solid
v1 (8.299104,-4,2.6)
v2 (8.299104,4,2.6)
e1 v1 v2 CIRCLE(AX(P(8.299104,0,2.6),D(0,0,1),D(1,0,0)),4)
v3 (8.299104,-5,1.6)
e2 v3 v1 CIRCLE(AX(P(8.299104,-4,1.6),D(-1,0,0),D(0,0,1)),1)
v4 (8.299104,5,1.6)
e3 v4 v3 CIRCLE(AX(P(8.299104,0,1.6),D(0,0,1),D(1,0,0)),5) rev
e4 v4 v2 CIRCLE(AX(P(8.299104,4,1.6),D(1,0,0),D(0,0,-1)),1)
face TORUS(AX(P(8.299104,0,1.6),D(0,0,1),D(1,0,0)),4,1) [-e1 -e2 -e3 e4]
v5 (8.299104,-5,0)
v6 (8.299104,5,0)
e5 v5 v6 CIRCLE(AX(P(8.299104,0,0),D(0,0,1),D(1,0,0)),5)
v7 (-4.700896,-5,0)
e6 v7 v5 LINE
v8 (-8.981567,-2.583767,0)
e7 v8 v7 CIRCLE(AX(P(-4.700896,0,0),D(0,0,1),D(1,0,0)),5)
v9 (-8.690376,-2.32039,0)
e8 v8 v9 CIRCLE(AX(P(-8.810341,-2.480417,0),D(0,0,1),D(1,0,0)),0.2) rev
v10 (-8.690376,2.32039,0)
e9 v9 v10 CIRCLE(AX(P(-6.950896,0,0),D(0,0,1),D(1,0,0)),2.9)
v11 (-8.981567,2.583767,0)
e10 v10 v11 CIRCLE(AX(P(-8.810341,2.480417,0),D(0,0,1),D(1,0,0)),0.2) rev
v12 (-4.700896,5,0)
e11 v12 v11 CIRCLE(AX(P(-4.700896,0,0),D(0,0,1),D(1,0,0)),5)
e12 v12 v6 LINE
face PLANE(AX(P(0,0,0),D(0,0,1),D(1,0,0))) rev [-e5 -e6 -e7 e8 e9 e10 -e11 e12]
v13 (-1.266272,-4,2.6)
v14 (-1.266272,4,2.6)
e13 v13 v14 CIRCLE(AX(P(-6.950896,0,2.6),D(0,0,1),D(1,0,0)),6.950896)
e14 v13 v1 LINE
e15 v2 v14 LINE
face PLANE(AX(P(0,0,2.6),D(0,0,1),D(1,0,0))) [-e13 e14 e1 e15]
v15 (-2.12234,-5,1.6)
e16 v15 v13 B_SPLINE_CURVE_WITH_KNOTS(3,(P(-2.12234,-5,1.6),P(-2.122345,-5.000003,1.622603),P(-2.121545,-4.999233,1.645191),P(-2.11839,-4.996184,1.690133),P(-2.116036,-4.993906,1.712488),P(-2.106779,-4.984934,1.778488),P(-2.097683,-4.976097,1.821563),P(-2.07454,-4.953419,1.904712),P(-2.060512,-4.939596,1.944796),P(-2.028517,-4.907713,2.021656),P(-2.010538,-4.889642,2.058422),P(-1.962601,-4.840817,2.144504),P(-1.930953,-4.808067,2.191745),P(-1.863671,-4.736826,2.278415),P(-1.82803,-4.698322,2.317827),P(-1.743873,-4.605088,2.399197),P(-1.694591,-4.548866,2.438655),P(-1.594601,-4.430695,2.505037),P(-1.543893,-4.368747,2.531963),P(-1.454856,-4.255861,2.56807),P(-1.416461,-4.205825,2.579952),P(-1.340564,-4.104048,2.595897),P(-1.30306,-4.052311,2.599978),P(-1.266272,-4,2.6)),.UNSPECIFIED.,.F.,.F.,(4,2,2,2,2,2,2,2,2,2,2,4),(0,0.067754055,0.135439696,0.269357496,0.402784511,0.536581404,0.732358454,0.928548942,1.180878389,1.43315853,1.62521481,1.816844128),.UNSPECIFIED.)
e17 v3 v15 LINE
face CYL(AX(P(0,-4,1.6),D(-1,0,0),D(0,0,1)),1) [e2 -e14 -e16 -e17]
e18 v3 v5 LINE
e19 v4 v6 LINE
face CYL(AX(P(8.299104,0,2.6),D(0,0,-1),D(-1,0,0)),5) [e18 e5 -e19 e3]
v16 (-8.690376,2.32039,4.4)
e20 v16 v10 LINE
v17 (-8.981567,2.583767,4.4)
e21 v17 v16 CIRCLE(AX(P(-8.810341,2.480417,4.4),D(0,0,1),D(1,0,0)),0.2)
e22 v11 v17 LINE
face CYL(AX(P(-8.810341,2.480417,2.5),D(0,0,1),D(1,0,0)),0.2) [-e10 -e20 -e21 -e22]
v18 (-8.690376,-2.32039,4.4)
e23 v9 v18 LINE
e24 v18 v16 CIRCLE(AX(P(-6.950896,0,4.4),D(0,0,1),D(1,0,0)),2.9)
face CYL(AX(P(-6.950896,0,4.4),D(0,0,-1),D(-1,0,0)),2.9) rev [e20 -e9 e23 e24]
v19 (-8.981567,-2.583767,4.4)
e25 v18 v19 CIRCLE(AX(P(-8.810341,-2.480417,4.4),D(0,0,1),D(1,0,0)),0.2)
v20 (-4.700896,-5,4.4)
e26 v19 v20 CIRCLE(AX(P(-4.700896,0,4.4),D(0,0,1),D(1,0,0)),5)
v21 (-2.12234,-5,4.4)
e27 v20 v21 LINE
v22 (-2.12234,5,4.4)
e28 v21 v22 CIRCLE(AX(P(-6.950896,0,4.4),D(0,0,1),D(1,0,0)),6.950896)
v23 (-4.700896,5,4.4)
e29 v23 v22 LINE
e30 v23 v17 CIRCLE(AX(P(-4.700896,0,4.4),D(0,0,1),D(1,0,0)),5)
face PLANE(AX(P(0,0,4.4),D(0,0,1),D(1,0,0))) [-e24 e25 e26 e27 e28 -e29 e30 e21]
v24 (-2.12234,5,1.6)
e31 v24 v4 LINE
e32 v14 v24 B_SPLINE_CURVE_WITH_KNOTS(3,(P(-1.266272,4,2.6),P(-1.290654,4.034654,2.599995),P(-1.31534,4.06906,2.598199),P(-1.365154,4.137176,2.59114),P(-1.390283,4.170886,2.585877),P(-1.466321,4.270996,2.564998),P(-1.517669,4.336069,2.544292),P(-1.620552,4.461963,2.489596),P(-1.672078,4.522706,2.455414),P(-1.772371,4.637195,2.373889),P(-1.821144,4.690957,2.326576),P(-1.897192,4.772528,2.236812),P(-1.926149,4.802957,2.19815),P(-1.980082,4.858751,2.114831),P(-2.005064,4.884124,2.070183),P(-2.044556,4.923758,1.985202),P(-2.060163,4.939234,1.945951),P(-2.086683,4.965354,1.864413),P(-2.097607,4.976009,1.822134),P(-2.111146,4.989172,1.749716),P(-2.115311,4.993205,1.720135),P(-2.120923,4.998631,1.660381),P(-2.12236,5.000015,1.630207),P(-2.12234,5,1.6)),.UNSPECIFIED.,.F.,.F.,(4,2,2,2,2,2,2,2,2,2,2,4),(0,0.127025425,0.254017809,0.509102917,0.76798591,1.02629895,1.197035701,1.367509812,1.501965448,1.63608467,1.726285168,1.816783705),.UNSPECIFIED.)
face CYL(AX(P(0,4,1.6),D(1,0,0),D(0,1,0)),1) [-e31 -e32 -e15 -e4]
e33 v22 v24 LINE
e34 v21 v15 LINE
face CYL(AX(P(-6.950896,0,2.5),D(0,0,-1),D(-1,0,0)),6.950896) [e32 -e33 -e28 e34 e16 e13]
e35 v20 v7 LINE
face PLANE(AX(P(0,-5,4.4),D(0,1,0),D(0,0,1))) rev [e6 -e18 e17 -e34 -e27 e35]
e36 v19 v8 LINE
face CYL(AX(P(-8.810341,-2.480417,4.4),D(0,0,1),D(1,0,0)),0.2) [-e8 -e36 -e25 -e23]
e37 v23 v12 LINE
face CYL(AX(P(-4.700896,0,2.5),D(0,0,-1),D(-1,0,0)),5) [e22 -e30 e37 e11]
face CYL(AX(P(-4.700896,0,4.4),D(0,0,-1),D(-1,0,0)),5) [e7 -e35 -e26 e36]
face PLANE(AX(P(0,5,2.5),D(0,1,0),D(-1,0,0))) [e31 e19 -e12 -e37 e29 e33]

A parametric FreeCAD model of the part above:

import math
import FreeCAD as App
import Part
import Sketcher
from FreeCAD import Vector


def edges_at(feature, points):
    """Names of the edges that pass closest to the given points."""
    edges = feature.Shape.Edges
    near = lambda p: min(range(len(edges)), key=lambda i: edges[i].distToShape(Part.Vertex(*p))[0])
    return sorted({f"Edge{near(p) + 1}" for p in points})

doc = App.newDocument("Part")
body = doc.addObject("PartDesign::Body", "Body")

# Sketch on XY plane
sketch1 = body.newObject("Sketcher::SketchObject", "Sketch")
sketch1.AttachmentSupport = (doc.getObject("XY_Plane"), [""])
sketch1.MapMode = "FlatFace"
sketch1.addGeometry([
    Part.ArcOfCircle(Part.Circle(Vector(-6.950896, 0, 0), Vector(0, 0, 1), 3.839498), math.radians(0), math.radians(107.500827)),  # 0
    Part.LineSegment(Vector(-3.111398, 0, 0), Vector(0, 0, 0)),  # 1
    Part.ArcOfCircle(Part.Circle(Vector(-6.950896, 0, 0), Vector(0, 0, 1), 6.950896), math.radians(0), math.radians(45.999333)),  # 2
    Part.LineSegment(Vector(-2.12234, 5, 0), Vector(-4.700896, 5, 0)),  # 3
    Part.ArcOfCircle(Part.Circle(Vector(-4.700896, 0, 0), Vector(0, 0, 1), 5), math.radians(90), math.radians(132.915768)),  # 4
], False)
sketch1.addConstraint([
    Sketcher.Constraint("Coincident", 0, 1, 1, 1),
    Sketcher.Constraint("Coincident", 1, 2, 2, 1),
    Sketcher.Constraint("Coincident", 2, 2, 3, 1),
    Sketcher.Constraint("Tangent", 3, 2, 4, 1),
    Sketcher.Constraint("Coincident", 4, 2, 0, 2),
    Sketcher.Constraint("Horizontal", 1),
    Sketcher.Constraint("Horizontal", 3),
    Sketcher.Constraint("Coincident", 1, 2, -1, 1),
    Sketcher.Constraint("Coincident", 2, 3, 0, 3),
    Sketcher.Constraint("PointOnObject", 0, 3, -1),
    Sketcher.Constraint("PointOnObject", 4, 3, -1),
    Sketcher.Constraint("Radius", 4, 5.0),
    Sketcher.Constraint("Radius", 0, 3.839498),
    Sketcher.Constraint("DistanceX", 2, 3, 4, 3, 2.25),
    Sketcher.Constraint("DistanceX", 1, 1, 1, 2, 3.111398),
])
pad1 = body.newObject("PartDesign::Pad", "Pad")
pad1.Profile = sketch1
pad1.Length = 2.5

# Sketch on XY plane
sketch2 = body.newObject("Sketcher::SketchObject", "Sketch001")
sketch2.AttachmentSupport = (doc.getObject("XY_Plane"), [""])
sketch2.MapMode = "FlatFace"
sketch2.addGeometry([
    Part.ArcOfCircle(Part.Circle(Vector(-6.950896, 0, 0), Vector(0, 0, 1), 3.839498), math.radians(0), math.radians(107.500827)),  # 0
    Part.ArcOfCircle(Part.Circle(Vector(-4.700896, 0, 0), Vector(0, 0, 1), 5), math.radians(132.915768), math.radians(164.224289)),  # 1
    Part.ArcOfCircle(Part.Circle(Vector(-6.950896, 0, 0), Vector(0, 0, 1), 2.9), math.radians(0), math.radians(152.047113)),  # 2
    Part.ArcOfCircle(Part.Circle(Vector(-6.950896, 0, 0), Vector(0, 0, 1), 2.9), math.radians(-152.047113), math.radians(0)),  # 3
    Part.ArcOfCircle(Part.Circle(Vector(-4.700896, 0, 0), Vector(0, 0, 1), 5), math.radians(-164.224289), math.radians(-132.915768)),  # 4
    Part.ArcOfCircle(Part.Circle(Vector(-6.950896, 0, 0), Vector(0, 0, 1), 3.839498), math.radians(-107.500827), math.radians(0)),  # 5
], False)
sketch2.addConstraint([
    Sketcher.Constraint("Coincident", 0, 2, 1, 1),
    Sketcher.Constraint("Coincident", 1, 2, 2, 2),
    Sketcher.Constraint("Tangent", 2, 1, 3, 2),
    Sketcher.Constraint("Coincident", 3, 1, 4, 1),
    Sketcher.Constraint("Coincident", 4, 2, 5, 1),
    Sketcher.Constraint("Tangent", 5, 2, 0, 1),
    Sketcher.Constraint("Coincident", 2, 3, 0, 3),
    Sketcher.Constraint("Coincident", 4, 3, 1, 3),
    Sketcher.Constraint("Equal", 2, 3),
    Sketcher.Constraint("Equal", 1, 4),
    Sketcher.Constraint("Equal", 0, 5),
    Sketcher.Constraint("Symmetric", 1, 2, 3, 1, -1),
    Sketcher.Constraint("PointOnObject", 2, 1, -1),
    Sketcher.Constraint("PointOnObject", 5, 2, -1),
    Sketcher.Constraint("Radius", 1, 5.0),
    Sketcher.Constraint("Radius", 2, 2.9),
    Sketcher.Constraint("Radius", 0, 3.839498),
    Sketcher.Constraint("DistanceX", 0, 3, 1, 3, 2.25),
    Sketcher.Constraint("DistanceX", 5, 2, -1, 1, 3.111398),
])
pad2 = body.newObject("PartDesign::Pad", "Pad001")
pad2.Profile = sketch2
pad2.Length = 4.4
doc.recompute()

fillet = body.newObject("PartDesign::Fillet", "Fillet")
fillet.Base = (pad2, edges_at(pad2, [(-9.513, -1.359, 2.2)]))
fillet.Radius = 0.2
doc.recompute()

fillet2 = body.newObject("PartDesign::Fillet", "Fillet001")
fillet2.Base = (fillet, edges_at(fillet, [(-9.513, 1.359, 2.2)]))
fillet2.Radius = 0.2

# Sketch on XY plane
sketch3 = body.newObject("Sketcher::SketchObject", "Sketch002")
sketch3.AttachmentSupport = (doc.getObject("XY_Plane"), [""])
sketch3.MapMode = "FlatFace"
sketch3.addGeometry([
    Part.ArcOfCircle(Part.Circle(Vector(-6.950896, 0, 0), Vector(0, 0, 1), 3.839498), math.radians(0), math.radians(107.500827)),  # 0
    Part.ArcOfCircle(Part.Circle(Vector(-6.950896, 0, 0), Vector(0, 0, 1), 3.839498), math.radians(-107.500827), math.radians(0)),  # 1
    Part.ArcOfCircle(Part.Circle(Vector(-4.700896, 0, 0), Vector(0, 0, 1), 5), math.radians(-132.915768), math.radians(-90)),  # 2
    Part.LineSegment(Vector(-4.700896, -5, 0), Vector(-2.12234, -5, 0)),  # 3
    Part.ArcOfCircle(Part.Circle(Vector(-6.950896, 0, 0), Vector(0, 0, 1), 6.950896), math.radians(-45.999333), math.radians(0)),  # 4
    Part.ArcOfCircle(Part.Circle(Vector(-6.950896, 0, 0), Vector(0, 0, 1), 6.950896), math.radians(0), math.radians(45.999333)),  # 5
    Part.LineSegment(Vector(-2.12234, 5, 0), Vector(-4.700896, 5, 0)),  # 6
    Part.ArcOfCircle(Part.Circle(Vector(-4.700896, 0, 0), Vector(0, 0, 1), 5), math.radians(90), math.radians(132.915768)),  # 7
], False)
sketch3.addConstraint([
    Sketcher.Constraint("Tangent", 0, 1, 1, 2),
    Sketcher.Constraint("Coincident", 1, 1, 2, 1),
    Sketcher.Constraint("Tangent", 2, 2, 3, 1),
    Sketcher.Constraint("Coincident", 3, 2, 4, 1),
    Sketcher.Constraint("Tangent", 4, 2, 5, 1),
    Sketcher.Constraint("Coincident", 5, 2, 6, 1),
    Sketcher.Constraint("Tangent", 6, 2, 7, 1),
    Sketcher.Constraint("Coincident", 7, 2, 0, 2),
    Sketcher.Constraint("Horizontal", 3),
    Sketcher.Constraint("Horizontal", 6),
    Sketcher.Constraint("Coincident", 4, 2, -1, 1),
    Sketcher.Constraint("Coincident", 4, 3, 0, 3),
    Sketcher.Constraint("Coincident", 7, 3, 2, 3),
    Sketcher.Constraint("Equal", 0, 1),
    Sketcher.Constraint("Equal", 4, 5),
    Sketcher.Constraint("Equal", 2, 7),
    Sketcher.Constraint("Symmetric", 3, 2, 5, 2, -1),
    Sketcher.Constraint("PointOnObject", 0, 1, -1),
    Sketcher.Constraint("Radius", 2, 5.0),
    Sketcher.Constraint("Radius", 0, 3.839498),
    Sketcher.Constraint("DistanceX", 0, 3, 2, 3, 2.25),
    Sketcher.Constraint("Radius", 4, 6.950896),
])
pad3 = body.newObject("PartDesign::Pad", "Pad002")
pad3.Profile = sketch3
pad3.Length = 4.4

# Sketch on XY plane
sketch4 = body.newObject("Sketcher::SketchObject", "Sketch003")
sketch4.AttachmentSupport = (doc.getObject("XY_Plane"), [""])
sketch4.MapMode = "FlatFace"
sketch4.addGeometry([
    Part.LineSegment(Vector(8.299104, 5, 0), Vector(-2.12234, 5, 0)),  # 0
    Part.ArcOfCircle(Part.Circle(Vector(-6.950896, 0, 0), Vector(0, 0, 1), 6.950896), math.radians(0), math.radians(45.999333)),  # 1
    Part.ArcOfCircle(Part.Circle(Vector(-6.950896, 0, 0), Vector(0, 0, 1), 6.950896), math.radians(-45.999333), math.radians(0)),  # 2
    Part.LineSegment(Vector(-2.12234, -5, 0), Vector(8.299104, -5, 0)),  # 3
    Part.ArcOfCircle(Part.Circle(Vector(8.299104, 0, 0), Vector(0, 0, 1), 5), math.radians(-90), math.radians(90)),  # 4
], False)
sketch4.addConstraint([
    Sketcher.Constraint("Coincident", 0, 2, 1, 2),
    Sketcher.Constraint("Tangent", 1, 1, 2, 2),
    Sketcher.Constraint("Coincident", 2, 1, 3, 1),
    Sketcher.Constraint("Tangent", 3, 2, 4, 1),
    Sketcher.Constraint("Tangent", 4, 2, 0, 1),
    Sketcher.Constraint("Horizontal", 0),
    Sketcher.Constraint("Horizontal", 3),
    Sketcher.Constraint("Coincident", 1, 1, -1, 1),
    Sketcher.Constraint("Equal", 1, 2),
    Sketcher.Constraint("Symmetric", 0, 2, 2, 1, -1),
    Sketcher.Constraint("Radius", 4, 5.0),
    Sketcher.Constraint("DistanceX", 1, 3, 4, 3, 15.25),
    Sketcher.Constraint("Radius", 1, 6.950896),
])
pad4 = body.newObject("PartDesign::Pad", "Pad003")
pad4.Profile = sketch4
pad4.Length = 2.6
doc.recompute()

fillet3 = body.newObject("PartDesign::Fillet", "Fillet002")
fillet3.Base = (pad4, edges_at(pad4, [(3.088, 5, 2.6), (3.088, -5, 2.6), (13.299, 0, 2.6)]))
fillet3.Radius = 1

doc.recompute()
